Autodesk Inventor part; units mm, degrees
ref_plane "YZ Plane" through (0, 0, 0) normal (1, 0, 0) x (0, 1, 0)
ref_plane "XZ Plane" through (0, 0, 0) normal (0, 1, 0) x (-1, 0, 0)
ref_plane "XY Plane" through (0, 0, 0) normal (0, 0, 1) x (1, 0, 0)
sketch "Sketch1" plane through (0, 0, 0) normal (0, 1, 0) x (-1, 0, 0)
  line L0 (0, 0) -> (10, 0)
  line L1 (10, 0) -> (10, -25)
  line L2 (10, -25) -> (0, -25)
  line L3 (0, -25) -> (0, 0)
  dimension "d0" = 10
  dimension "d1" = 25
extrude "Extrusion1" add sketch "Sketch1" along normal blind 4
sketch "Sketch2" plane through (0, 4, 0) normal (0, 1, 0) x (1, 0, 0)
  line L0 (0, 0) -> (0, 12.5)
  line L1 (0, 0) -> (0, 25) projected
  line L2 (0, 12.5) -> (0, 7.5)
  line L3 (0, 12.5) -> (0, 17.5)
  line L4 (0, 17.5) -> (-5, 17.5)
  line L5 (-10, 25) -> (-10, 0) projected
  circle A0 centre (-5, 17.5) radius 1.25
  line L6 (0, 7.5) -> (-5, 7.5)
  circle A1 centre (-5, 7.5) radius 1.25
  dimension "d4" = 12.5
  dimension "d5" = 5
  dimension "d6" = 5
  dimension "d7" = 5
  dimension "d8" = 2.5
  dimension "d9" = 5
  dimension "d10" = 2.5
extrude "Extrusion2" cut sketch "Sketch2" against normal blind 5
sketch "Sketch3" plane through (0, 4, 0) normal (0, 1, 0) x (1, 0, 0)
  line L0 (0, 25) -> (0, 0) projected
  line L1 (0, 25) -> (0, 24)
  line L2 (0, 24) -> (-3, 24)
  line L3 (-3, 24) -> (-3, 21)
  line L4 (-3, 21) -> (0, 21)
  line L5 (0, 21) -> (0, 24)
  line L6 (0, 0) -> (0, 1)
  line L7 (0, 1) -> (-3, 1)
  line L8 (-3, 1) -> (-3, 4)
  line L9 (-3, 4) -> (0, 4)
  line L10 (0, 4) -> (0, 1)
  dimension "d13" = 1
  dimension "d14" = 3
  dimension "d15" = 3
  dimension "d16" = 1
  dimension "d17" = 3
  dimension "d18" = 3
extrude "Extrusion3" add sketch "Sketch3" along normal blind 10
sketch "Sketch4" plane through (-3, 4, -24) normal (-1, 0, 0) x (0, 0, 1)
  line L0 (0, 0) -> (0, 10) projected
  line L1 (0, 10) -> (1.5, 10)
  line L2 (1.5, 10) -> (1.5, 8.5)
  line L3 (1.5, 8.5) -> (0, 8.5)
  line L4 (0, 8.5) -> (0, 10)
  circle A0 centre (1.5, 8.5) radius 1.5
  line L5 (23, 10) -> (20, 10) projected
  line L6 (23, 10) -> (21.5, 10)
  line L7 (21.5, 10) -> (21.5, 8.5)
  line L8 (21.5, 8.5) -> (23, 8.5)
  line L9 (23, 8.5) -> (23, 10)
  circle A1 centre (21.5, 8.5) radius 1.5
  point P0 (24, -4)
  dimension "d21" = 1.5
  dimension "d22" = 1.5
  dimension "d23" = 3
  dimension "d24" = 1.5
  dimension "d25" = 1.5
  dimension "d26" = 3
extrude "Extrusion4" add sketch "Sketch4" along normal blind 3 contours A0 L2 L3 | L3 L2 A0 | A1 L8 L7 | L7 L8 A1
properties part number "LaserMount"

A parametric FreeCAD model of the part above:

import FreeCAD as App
import Part
import Sketcher
from FreeCAD import Vector
Q = App.Units.Quantity


def add_polygon(sketch, points):
    """Adds a closed chain of lines whose ends are joined by coincident constraints."""
    first, n = sketch.GeometryCount, len(points)
    for a, b in zip(points, points[1:] + points[:1]):
        sketch.addGeometry(Part.LineSegment(App.Vector(*a, 0), App.Vector(*b, 0)), False)
    for i in range(n):
        sketch.addConstraint(Sketcher.Constraint("Coincident", first + i, 2, first + (i + 1) % n, 1))

doc = App.newDocument("Part")
body = doc.addObject("PartDesign::Body", "Body")

sketch1 = doc.addObject("Sketcher::SketchObject", "Sketch")
body.addObject(sketch1)
sketch1.AttachmentSupport = (doc.XZ_Plane, [""])
sketch1.MapMode = "FlatFace"
add_polygon(sketch1, [(-10, 0), (0, 0), (0, -25), (-10, -25)])
sketch1.addConstraint([
    Sketcher.Constraint("Horizontal", 0),
    Sketcher.Constraint("Vertical", 1),
    Sketcher.Constraint("Horizontal", 2),
    Sketcher.Constraint("Vertical", 3),
    Sketcher.Constraint("Coincident", 0, 2, -1, 1),
    Sketcher.Constraint("DistanceX", 0, 1, 0, 2, Q("10 mm")),
    Sketcher.Constraint("DistanceY", 1, 2, 1, 1, Q("25 mm")),
])
pad1 = doc.addObject("PartDesign::Pad", "Pad")
body.addObject(pad1)
pad1.Profile = sketch1
pad1.Length = 4
pad1.Reversed = True

sketch2 = doc.addObject("Sketcher::SketchObject", "Sketch001")
body.addObject(sketch2)
sketch2.AttachmentSupport = (doc.XZ_Plane, [""])
sketch2.MapMode = "FlatFace"
sketch2.AttachmentOffset = App.Placement(Vector(0, 0, -4), App.Rotation())
sketch2.addGeometry([
    Part.Circle(Vector(-5, -17.5, 0), Vector(0, 0, 1), 1.25),
    Part.Circle(Vector(-5, -7.5, 0), Vector(0, 0, 1), 1.25),
], False)
sketch2.addConstraint([
    Sketcher.Constraint("Equal", 0, 1),
    Sketcher.Constraint("Vertical", 0, 3, 1, 3),
    Sketcher.Constraint("Diameter", 0, Q("2.5 mm")),
    Sketcher.Constraint("DistanceX", 0, 3, -1, 1, Q("5 mm")),
    Sketcher.Constraint("DistanceY", 0, 3, 1, 3, Q("10 mm")),
    Sketcher.Constraint("DistanceY", 0, 3, -1, 1, Q("17.5 mm")),
])
pocket1 = doc.addObject("PartDesign::Pocket", "Pocket")
body.addObject(pocket1)
pocket1.Profile = sketch2
pocket1.Length = 5
pocket1.Reversed = True

sketch3 = doc.addObject("Sketcher::SketchObject", "Sketch002")
body.addObject(sketch3)
sketch3.AttachmentSupport = (doc.XZ_Plane, [""])
sketch3.MapMode = "FlatFace"
sketch3.AttachmentOffset = App.Placement(Vector(0, 0, -4), App.Rotation())
add_polygon(sketch3, [(0, -1), (0, -4), (-3, -4), (-3, -1)])
add_polygon(sketch3, [(0, -21), (0, -24), (-3, -24), (-3, -21)])
sketch3.addConstraint([
    Sketcher.Constraint("Vertical", 0),
    Sketcher.Constraint("Horizontal", 1),
    Sketcher.Constraint("Vertical", 2),
    Sketcher.Constraint("Horizontal", 3),
    Sketcher.Constraint("Vertical", 4),
    Sketcher.Constraint("Horizontal", 5),
    Sketcher.Constraint("Vertical", 6),
    Sketcher.Constraint("Horizontal", 7),
    Sketcher.Constraint("PointOnObject", 0, 2, -2),
    Sketcher.Constraint("PointOnObject", 4, 2, -2),
    Sketcher.Constraint("Vertical", 2, 2, 5, 2),
    Sketcher.Constraint("Equal", 7, 0),
    Sketcher.Constraint("Equal", 2, 4),
    Sketcher.Constraint("DistanceX", 1, 2, 1, 1, Q("3 mm")),
    Sketcher.Constraint("DistanceY", 2, 2, -1, 1, Q("1 mm")),
    Sketcher.Constraint("DistanceY", 4, 2, -1, 1, Q("24 mm")),
])
pad2 = doc.addObject("PartDesign::Pad", "Pad001")
body.addObject(pad2)
pad2.Profile = sketch3
pad2.Length = 10
pad2.Reversed = True

sketch4 = doc.addObject("Sketcher::SketchObject", "Sketch003")
body.addObject(sketch4)
sketch4.AttachmentSupport = (doc.YZ_Plane, [""])
sketch4.MapMode = "FlatFace"
sketch4.AttachmentOffset = App.Placement(Vector(0, 0, -3), App.Rotation())
sketch4.addGeometry([
    Part.Circle(Vector(12.5, -22.5, 0), Vector(0, 0, 1), 1.5),
    Part.Circle(Vector(12.5, -2.5, 0), Vector(0, 0, 1), 1.5),
], False)
sketch4.addConstraint([
    Sketcher.Constraint("Equal", 0, 1),
    Sketcher.Constraint("Vertical", 0, 3, 1, 3),
    Sketcher.Constraint("Diameter", 0, Q("3 mm")),
    Sketcher.Constraint("DistanceY", 0, 3, 1, 3, Q("20 mm")),
    Sketcher.Constraint("DistanceX", -1, 1, 0, 3, Q("12.5 mm")),
    Sketcher.Constraint("DistanceY", 0, 3, -1, 1, Q("22.5 mm")),
])
pad3 = doc.addObject("PartDesign::Pad", "Pad002")
body.addObject(pad3)
pad3.Profile = sketch4
pad3.Length = 3
pad3.Reversed = True

doc.recompute()
